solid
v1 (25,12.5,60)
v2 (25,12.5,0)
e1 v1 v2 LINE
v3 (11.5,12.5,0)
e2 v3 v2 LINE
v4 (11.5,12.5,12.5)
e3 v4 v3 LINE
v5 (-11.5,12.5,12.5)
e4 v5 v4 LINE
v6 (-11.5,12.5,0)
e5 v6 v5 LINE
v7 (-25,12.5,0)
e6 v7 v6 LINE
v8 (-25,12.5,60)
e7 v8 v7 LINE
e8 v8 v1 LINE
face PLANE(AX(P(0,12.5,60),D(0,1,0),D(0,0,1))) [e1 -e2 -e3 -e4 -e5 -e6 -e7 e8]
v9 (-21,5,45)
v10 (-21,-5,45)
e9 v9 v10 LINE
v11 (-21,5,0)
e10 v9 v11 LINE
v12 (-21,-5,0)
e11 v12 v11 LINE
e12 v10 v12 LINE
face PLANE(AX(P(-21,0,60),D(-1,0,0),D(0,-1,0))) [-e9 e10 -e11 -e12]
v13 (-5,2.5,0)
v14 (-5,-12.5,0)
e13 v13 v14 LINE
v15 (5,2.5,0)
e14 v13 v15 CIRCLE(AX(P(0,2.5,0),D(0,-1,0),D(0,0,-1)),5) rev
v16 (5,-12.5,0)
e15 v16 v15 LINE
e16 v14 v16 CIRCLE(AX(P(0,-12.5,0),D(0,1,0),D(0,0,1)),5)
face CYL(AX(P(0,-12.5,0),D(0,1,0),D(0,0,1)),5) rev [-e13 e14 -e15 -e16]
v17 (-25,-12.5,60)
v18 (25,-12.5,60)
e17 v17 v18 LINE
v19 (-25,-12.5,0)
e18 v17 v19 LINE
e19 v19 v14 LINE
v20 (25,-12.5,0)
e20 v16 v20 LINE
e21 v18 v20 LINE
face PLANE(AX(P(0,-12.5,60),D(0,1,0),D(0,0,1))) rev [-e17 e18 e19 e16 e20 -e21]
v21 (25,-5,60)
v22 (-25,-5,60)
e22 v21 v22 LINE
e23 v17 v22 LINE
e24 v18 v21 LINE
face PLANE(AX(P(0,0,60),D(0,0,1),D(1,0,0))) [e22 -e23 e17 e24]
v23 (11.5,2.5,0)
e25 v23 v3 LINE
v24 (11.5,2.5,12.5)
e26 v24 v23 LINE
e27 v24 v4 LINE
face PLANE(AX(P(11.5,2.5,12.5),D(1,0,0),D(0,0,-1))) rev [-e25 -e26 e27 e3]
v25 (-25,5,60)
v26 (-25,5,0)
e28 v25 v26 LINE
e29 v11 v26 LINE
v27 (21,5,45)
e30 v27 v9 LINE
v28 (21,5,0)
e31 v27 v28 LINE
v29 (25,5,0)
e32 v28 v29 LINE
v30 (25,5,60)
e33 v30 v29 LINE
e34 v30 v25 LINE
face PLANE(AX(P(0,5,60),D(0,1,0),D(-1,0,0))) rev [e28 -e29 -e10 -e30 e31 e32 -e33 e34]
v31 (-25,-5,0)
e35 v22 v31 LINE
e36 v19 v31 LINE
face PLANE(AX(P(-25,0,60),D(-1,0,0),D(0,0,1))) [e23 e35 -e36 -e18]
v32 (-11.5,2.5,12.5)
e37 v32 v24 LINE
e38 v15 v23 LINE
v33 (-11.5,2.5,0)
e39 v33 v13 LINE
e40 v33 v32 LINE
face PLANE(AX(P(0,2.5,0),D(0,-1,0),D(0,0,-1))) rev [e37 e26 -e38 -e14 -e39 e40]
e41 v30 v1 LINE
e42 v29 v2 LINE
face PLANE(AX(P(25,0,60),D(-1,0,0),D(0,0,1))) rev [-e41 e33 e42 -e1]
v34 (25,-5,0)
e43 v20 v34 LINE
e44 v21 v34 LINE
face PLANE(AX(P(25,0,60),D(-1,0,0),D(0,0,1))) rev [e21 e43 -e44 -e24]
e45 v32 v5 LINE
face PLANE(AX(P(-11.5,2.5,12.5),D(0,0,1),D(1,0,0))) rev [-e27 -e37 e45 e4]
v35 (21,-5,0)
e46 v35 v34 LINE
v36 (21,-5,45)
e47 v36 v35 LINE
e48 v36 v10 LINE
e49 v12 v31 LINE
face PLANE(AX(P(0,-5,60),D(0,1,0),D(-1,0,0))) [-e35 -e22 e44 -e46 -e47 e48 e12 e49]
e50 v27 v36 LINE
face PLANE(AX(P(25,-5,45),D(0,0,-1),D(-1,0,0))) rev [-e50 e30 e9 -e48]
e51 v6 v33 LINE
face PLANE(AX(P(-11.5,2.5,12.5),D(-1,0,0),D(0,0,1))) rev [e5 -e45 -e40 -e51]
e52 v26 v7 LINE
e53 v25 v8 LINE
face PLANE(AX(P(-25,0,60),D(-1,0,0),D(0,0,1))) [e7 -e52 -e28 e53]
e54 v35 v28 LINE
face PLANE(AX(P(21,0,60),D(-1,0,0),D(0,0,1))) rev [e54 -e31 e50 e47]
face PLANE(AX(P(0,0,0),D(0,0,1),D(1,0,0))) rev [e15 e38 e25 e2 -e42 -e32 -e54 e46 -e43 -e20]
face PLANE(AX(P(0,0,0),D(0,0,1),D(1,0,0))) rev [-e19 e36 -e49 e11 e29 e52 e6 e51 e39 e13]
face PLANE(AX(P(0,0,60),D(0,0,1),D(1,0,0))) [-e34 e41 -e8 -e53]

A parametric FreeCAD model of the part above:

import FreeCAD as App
import Part
import Sketcher

V = App.Vector
Q = App.Units.Quantity

doc = App.newDocument("Part")
params = doc.addObject("Spreadsheet::Sheet", "Params")
for row, (alias, value) in enumerate([
    ("sketch1_width", "50 mm"),
    ("sketch1_width2", "4 mm"),
    ("sketch1_height", "10 mm"),
    ("sketch1_height2", "7.5 mm"),
    ("pad1_length", "60 mm"),
    ("sketch2_width", "10 mm"),
    ("sketch2_height", "15 mm"),
    ("sketch3_diameter", "10 mm"),
    ("sketch4_width", "23 mm"),
    ("sketch4_height", "25 mm"),
    ("pocket3_length", "10 mm"),
], start=1):
    params.set(f"A{row}", alias)
    params.set(f"B{row}", "=" + value)
    params.setAlias(f"B{row}", alias)

body = doc.addObject("PartDesign::Body", "Body")

sketch1 = body.newObject("Sketcher::SketchObject", "Sketch")
sketch1.AttachmentSupport = (doc.getObject("XY_Plane"), [""])
sketch1.MapMode = "FlatFace"
sketch1.addGeometry(Part.LineSegment(V(-25, -5, 0), V(-25, -12.5, 0)), False)
sketch1.addGeometry(Part.LineSegment(V(-25, -12.5, 0), V(25, -12.5, 0)), False)
sketch1.addGeometry(Part.LineSegment(V(25, -12.5, 0), V(25, -5, 0)), False)
sketch1.addGeometry(Part.LineSegment(V(25, -5, 0), V(21, -5, 0)), False)
sketch1.addGeometry(Part.LineSegment(V(21, -5, 0), V(21, 5, 0)), False)
sketch1.addGeometry(Part.LineSegment(V(21, 5, 0), V(25, 5, 0)), False)
sketch1.addGeometry(Part.LineSegment(V(25, 5, 0), V(25, 12.5, 0)), False)
sketch1.addGeometry(Part.LineSegment(V(25, 12.5, 0), V(-25, 12.5, 0)), False)
sketch1.addGeometry(Part.LineSegment(V(-25, 12.5, 0), V(-25, 5, 0)), False)
sketch1.addGeometry(Part.LineSegment(V(-25, 5, 0), V(-21, 5, 0)), False)
sketch1.addGeometry(Part.LineSegment(V(-21, 5, 0), V(-21, -5, 0)), False)
sketch1.addGeometry(Part.LineSegment(V(-21, -5, 0), V(-25, -5, 0)), False)
sketch1.addConstraint(Sketcher.Constraint("Coincident", 0, 2, 1, 1))
sketch1.addConstraint(Sketcher.Constraint("Coincident", 1, 2, 2, 1))
sketch1.addConstraint(Sketcher.Constraint("Coincident", 2, 2, 3, 1))
sketch1.addConstraint(Sketcher.Constraint("Coincident", 3, 2, 4, 1))
sketch1.addConstraint(Sketcher.Constraint("Coincident", 4, 2, 5, 1))
sketch1.addConstraint(Sketcher.Constraint("Coincident", 5, 2, 6, 1))
sketch1.addConstraint(Sketcher.Constraint("Coincident", 6, 2, 7, 1))
sketch1.addConstraint(Sketcher.Constraint("Coincident", 7, 2, 8, 1))
sketch1.addConstraint(Sketcher.Constraint("Coincident", 8, 2, 9, 1))
sketch1.addConstraint(Sketcher.Constraint("Coincident", 9, 2, 10, 1))
sketch1.addConstraint(Sketcher.Constraint("Coincident", 10, 2, 11, 1))
sketch1.addConstraint(Sketcher.Constraint("Coincident", 11, 2, 0, 1))
sketch1.addConstraint(Sketcher.Constraint("Vertical", 0))
sketch1.addConstraint(Sketcher.Constraint("Horizontal", 1))
sketch1.addConstraint(Sketcher.Constraint("Vertical", 2))
sketch1.addConstraint(Sketcher.Constraint("Horizontal", 3))
sketch1.addConstraint(Sketcher.Constraint("Vertical", 4))
sketch1.addConstraint(Sketcher.Constraint("Horizontal", 5))
sketch1.addConstraint(Sketcher.Constraint("Vertical", 6))
sketch1.addConstraint(Sketcher.Constraint("Horizontal", 7))
sketch1.addConstraint(Sketcher.Constraint("Vertical", 8))
sketch1.addConstraint(Sketcher.Constraint("Horizontal", 9))
sketch1.addConstraint(Sketcher.Constraint("Vertical", 10))
sketch1.addConstraint(Sketcher.Constraint("Horizontal", 11))
sketch1.addConstraint(Sketcher.Constraint("Symmetric", 0, 2, 6, 2, -1, 1))
sketch1.addConstraint(Sketcher.Constraint("Symmetric", 2, 2, 8, 2, -1, 1))
sketch1.addConstraint(Sketcher.Constraint("Symmetric", 4, 2, 10, 2, -1, 1))
sketch1.addConstraint(Sketcher.Constraint("Symmetric", 5, 2, 8, 2, -2))
sketch1.addConstraint(Sketcher.Constraint("DistanceX", 1, 1, 1, 2, Q("50 mm")))
sketch1.addConstraint(Sketcher.Constraint("DistanceX", 3, 2, 3, 1, Q("4 mm")))
sketch1.addConstraint(Sketcher.Constraint("DistanceY", 4, 1, 4, 2, Q("10 mm")))
sketch1.addConstraint(Sketcher.Constraint("DistanceY", 0, 2, 0, 1, Q("7.5 mm")))
sketch1.setExpression("Constraints[28]", "Params.sketch1_width")
sketch1.setExpression("Constraints[29]", "Params.sketch1_width2")
sketch1.setExpression("Constraints[30]", "Params.sketch1_height")
sketch1.setExpression("Constraints[31]", "Params.sketch1_height2")
pad1 = body.newObject("PartDesign::Pad", "Pad")
pad1.Profile = sketch1
pad1.setExpression("Length", "Params.pad1_length")

sketch2 = body.newObject("Sketcher::SketchObject", "Sketch001")
sketch2.AttachmentSupport = (doc.getObject("YZ_Plane"), [""])
sketch2.MapMode = "FlatFace"
sketch2.AttachmentOffset = App.Placement(V(0, 0, -21), App.Rotation())
sketch2.addGeometry(Part.LineSegment(V(5, 45, 0), V(-5, 45, 0)), False)
sketch2.addGeometry(Part.LineSegment(V(-5, 45, 0), V(-5, 60, 0)), False)
sketch2.addGeometry(Part.LineSegment(V(-5, 60, 0), V(5, 60, 0)), False)
sketch2.addGeometry(Part.LineSegment(V(5, 60, 0), V(5, 45, 0)), False)
sketch2.addConstraint(Sketcher.Constraint("Coincident", 0, 2, 1, 1))
sketch2.addConstraint(Sketcher.Constraint("Coincident", 1, 2, 2, 1))
sketch2.addConstraint(Sketcher.Constraint("Coincident", 2, 2, 3, 1))
sketch2.addConstraint(Sketcher.Constraint("Coincident", 3, 2, 0, 1))
sketch2.addConstraint(Sketcher.Constraint("Horizontal", 0))
sketch2.addConstraint(Sketcher.Constraint("Vertical", 1))
sketch2.addConstraint(Sketcher.Constraint("Horizontal", 2))
sketch2.addConstraint(Sketcher.Constraint("Vertical", 3))
sketch2.addConstraint(Sketcher.Constraint("DistanceX", 0, 2, 0, 1, Q("10 mm")))
sketch2.addConstraint(Sketcher.Constraint("DistanceY", 1, 1, 1, 2, Q("15 mm")))
sketch2.addConstraint(Sketcher.Constraint("DistanceX", 0, 2, -1, 1, Q("5 mm")))
sketch2.addConstraint(Sketcher.Constraint("DistanceY", -1, 1, 0, 2, Q("45 mm")))
sketch2.setExpression("Constraints[8]", "Params.sketch2_width")
sketch2.setExpression("Constraints[9]", "Params.sketch2_height")
pocket1 = body.newObject("PartDesign::Pocket", "Pocket")
pocket1.Profile = sketch2
pocket1.Type = "ThroughAll"
pocket1.Reversed = True

sketch3 = body.newObject("Sketcher::SketchObject", "Sketch002")
sketch3.AttachmentSupport = (doc.getObject("XZ_Plane"), [""])
sketch3.MapMode = "FlatFace"
sketch3.AttachmentOffset = App.Placement(V(0, 0, -12.5), App.Rotation())
sketch3.addGeometry(Part.Circle(V(0, 0, 0), V(0, 0, 1), 5), False)
sketch3.addConstraint(Sketcher.Constraint("Coincident", 0, 3, -1, 1))
sketch3.addConstraint(Sketcher.Constraint("Diameter", 0, Q("10 mm")))
sketch3.setExpression("Constraints[1]", "Params.sketch3_diameter")
pocket2 = body.newObject("PartDesign::Pocket", "Pocket001")
pocket2.Profile = sketch3
pocket2.Type = "ThroughAll"
pocket2.Reversed = True

sketch4 = body.newObject("Sketcher::SketchObject", "Sketch003")
sketch4.AttachmentSupport = (doc.getObject("XZ_Plane"), [""])
sketch4.MapMode = "FlatFace"
sketch4.AttachmentOffset = App.Placement(V(0, 0, -12.5), App.Rotation())
sketch4.addGeometry(Part.LineSegment(V(-12, -12, 0), V(-12, 12, 0)), False)
sketch4.addGeometry(Part.LineSegment(V(-12, 12, 0), V(12, 12, 0)), False)
sketch4.addGeometry(Part.LineSegment(V(12, 12, 0), V(12, -12, 0)), False)
sketch4.addGeometry(Part.LineSegment(V(12, -12, 0), V(-12, -12, 0)), False)
sketch4.addConstraint(Sketcher.Constraint("Coincident", 0, 2, 1, 1))
sketch4.addConstraint(Sketcher.Constraint("Coincident", 1, 2, 2, 1))
sketch4.addConstraint(Sketcher.Constraint("Coincident", 2, 2, 3, 1))
sketch4.addConstraint(Sketcher.Constraint("Coincident", 3, 2, 0, 1))
sketch4.addConstraint(Sketcher.Constraint("Vertical", 0))
sketch4.addConstraint(Sketcher.Constraint("Horizontal", 1))
sketch4.addConstraint(Sketcher.Constraint("Vertical", 2))
sketch4.addConstraint(Sketcher.Constraint("Horizontal", 3))
sketch4.addConstraint(Sketcher.Constraint("Symmetric", 0, 2, 2, 2, -1, 1))
sketch4.addConstraint(Sketcher.Constraint("DistanceX", 1, 1, 1, 2, Q("23 mm")))
sketch4.addConstraint(Sketcher.Constraint("DistanceY", 0, 1, 0, 2, Q("25 mm")))
sketch4.setExpression("Constraints[9]", "Params.sketch4_width")
sketch4.setExpression("Constraints[10]", "Params.sketch4_height")
pocket3 = body.newObject("PartDesign::Pocket", "Pocket002")
pocket3.Profile = sketch4
pocket3.setExpression("Length", "Params.pocket3_length")
pocket3.Reversed = True

doc.recompute()
